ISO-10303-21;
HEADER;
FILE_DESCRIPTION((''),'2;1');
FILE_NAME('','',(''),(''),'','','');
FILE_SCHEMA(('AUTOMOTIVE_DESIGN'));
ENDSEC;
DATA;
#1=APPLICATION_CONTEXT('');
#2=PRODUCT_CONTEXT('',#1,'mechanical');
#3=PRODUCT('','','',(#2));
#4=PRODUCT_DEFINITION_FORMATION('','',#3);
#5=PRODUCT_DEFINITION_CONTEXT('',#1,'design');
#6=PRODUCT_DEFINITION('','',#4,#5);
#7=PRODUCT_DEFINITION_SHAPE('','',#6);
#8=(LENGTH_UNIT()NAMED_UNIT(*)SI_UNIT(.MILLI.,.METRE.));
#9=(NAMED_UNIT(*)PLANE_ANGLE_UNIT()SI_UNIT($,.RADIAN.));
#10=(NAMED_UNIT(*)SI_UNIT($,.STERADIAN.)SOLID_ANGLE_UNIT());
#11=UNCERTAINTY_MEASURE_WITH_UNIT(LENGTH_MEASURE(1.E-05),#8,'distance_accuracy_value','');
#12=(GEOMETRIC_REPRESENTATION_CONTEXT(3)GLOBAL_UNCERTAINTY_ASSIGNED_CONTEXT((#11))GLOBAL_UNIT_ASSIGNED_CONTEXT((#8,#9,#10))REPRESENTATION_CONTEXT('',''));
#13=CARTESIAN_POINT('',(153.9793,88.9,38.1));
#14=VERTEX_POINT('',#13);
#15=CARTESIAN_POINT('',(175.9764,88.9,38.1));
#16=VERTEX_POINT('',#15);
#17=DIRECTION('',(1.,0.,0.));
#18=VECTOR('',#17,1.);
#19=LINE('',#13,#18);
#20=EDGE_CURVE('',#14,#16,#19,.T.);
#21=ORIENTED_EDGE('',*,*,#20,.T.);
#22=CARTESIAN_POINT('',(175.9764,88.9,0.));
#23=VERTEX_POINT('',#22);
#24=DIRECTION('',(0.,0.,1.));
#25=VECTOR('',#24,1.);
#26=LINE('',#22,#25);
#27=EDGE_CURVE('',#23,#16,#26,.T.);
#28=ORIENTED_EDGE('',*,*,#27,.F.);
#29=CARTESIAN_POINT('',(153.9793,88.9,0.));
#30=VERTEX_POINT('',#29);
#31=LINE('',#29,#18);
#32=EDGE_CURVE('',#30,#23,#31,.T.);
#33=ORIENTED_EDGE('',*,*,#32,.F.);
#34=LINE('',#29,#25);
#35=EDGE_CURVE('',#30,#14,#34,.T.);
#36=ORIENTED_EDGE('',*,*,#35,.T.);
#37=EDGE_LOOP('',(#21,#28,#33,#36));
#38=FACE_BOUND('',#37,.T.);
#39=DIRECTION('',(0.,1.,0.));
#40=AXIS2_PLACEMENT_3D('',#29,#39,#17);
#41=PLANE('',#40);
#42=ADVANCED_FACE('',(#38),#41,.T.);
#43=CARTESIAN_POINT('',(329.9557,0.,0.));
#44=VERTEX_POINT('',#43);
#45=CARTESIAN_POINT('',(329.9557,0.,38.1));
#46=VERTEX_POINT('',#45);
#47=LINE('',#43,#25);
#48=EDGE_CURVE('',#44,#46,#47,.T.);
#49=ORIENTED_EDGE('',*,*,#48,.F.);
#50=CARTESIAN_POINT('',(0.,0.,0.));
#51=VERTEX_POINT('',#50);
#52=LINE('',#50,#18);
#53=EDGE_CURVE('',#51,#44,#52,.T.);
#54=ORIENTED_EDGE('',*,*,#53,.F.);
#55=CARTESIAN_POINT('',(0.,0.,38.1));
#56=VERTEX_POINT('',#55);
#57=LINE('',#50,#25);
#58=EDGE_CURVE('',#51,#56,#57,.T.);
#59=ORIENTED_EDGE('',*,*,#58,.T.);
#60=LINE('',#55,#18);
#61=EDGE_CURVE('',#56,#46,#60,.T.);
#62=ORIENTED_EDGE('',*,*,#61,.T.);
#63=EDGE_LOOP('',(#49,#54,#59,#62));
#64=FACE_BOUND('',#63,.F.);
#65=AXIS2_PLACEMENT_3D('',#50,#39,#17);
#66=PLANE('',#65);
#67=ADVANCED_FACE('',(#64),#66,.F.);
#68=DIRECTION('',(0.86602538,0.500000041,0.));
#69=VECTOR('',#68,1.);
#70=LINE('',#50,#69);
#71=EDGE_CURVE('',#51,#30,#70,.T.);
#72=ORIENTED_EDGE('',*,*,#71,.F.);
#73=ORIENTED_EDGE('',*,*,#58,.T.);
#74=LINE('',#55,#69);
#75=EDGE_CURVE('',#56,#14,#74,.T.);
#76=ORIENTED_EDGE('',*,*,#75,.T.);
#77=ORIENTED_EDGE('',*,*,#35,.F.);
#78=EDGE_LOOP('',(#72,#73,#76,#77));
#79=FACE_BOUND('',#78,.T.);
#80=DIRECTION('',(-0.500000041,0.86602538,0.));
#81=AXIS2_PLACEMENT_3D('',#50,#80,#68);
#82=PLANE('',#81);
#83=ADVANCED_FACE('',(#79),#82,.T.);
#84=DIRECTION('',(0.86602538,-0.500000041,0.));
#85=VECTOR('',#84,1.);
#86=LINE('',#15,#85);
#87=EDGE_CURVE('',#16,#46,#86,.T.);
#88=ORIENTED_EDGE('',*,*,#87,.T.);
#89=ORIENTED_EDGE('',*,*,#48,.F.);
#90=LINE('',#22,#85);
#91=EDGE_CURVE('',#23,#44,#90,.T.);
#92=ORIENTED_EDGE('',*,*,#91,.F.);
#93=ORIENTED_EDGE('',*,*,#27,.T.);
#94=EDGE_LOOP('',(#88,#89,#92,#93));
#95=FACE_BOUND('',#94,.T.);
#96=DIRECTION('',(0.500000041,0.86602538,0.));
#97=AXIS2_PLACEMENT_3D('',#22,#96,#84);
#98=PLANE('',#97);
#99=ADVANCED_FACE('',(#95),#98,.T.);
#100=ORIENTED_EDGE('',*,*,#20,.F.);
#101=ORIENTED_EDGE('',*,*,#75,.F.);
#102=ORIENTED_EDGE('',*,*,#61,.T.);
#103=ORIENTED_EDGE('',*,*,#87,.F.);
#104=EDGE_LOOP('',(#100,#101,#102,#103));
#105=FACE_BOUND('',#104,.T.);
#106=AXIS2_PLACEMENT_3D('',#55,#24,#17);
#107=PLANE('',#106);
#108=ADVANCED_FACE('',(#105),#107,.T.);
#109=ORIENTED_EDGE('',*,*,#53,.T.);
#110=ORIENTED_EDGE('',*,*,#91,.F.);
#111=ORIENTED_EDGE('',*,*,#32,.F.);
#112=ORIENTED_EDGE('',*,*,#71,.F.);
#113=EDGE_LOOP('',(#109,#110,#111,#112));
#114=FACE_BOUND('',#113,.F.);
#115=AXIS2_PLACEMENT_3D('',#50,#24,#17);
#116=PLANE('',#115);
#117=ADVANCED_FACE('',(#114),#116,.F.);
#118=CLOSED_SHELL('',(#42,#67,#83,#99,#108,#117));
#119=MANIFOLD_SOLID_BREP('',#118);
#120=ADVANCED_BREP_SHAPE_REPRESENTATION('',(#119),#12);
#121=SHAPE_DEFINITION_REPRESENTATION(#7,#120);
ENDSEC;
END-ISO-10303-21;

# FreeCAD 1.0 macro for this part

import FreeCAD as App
import Part
import Sketcher
from FreeCAD import Vector
Q = App.Units.Quantity


def add_polygon(sketch, points):
    """Adds a closed chain of lines whose ends are joined by coincident constraints."""
    first, n = sketch.GeometryCount, len(points)
    for a, b in zip(points, points[1:] + points[:1]):
        sketch.addGeometry(Part.LineSegment(App.Vector(*a, 0), App.Vector(*b, 0)), False)
    for i in range(n):
        sketch.addConstraint(Sketcher.Constraint("Coincident", first + i, 2, first + (i + 1) % n, 1))

doc = App.newDocument("Part")
body = doc.addObject("PartDesign::Body", "Body")

# Sketch on XY plane
sketch1 = body.newObject("Sketcher::SketchObject", "Sketch")
sketch1.AttachmentSupport = (doc.getObject("XY_Plane"), [""])
sketch1.MapMode = "FlatFace"
add_polygon(sketch1, [(154, 89), (0, 0), (330, 0), (176, 89)])  # lines 0-3
sketch1.addConstraint([
    Sketcher.Constraint("Horizontal", 1),
    Sketcher.Constraint("Horizontal", 3),
    Sketcher.Constraint("Coincident", 0, 2, -1, 1),
    Sketcher.Constraint("Equal", 0, 2),
    Sketcher.Constraint("DistanceY", -1, 1, 2, 2, Q("3.5 in")),
    Sketcher.Constraint("Distance", 0, Q("7 in")),
    Sketcher.Constraint("DistanceX", 1, 1, 1, 2, Q("329.9557 mm")),
])
pad1 = body.newObject("PartDesign::Pad", "Pad")
pad1.Profile = sketch1
pad1.Length = Q("1.5 in")

doc.recompute()
